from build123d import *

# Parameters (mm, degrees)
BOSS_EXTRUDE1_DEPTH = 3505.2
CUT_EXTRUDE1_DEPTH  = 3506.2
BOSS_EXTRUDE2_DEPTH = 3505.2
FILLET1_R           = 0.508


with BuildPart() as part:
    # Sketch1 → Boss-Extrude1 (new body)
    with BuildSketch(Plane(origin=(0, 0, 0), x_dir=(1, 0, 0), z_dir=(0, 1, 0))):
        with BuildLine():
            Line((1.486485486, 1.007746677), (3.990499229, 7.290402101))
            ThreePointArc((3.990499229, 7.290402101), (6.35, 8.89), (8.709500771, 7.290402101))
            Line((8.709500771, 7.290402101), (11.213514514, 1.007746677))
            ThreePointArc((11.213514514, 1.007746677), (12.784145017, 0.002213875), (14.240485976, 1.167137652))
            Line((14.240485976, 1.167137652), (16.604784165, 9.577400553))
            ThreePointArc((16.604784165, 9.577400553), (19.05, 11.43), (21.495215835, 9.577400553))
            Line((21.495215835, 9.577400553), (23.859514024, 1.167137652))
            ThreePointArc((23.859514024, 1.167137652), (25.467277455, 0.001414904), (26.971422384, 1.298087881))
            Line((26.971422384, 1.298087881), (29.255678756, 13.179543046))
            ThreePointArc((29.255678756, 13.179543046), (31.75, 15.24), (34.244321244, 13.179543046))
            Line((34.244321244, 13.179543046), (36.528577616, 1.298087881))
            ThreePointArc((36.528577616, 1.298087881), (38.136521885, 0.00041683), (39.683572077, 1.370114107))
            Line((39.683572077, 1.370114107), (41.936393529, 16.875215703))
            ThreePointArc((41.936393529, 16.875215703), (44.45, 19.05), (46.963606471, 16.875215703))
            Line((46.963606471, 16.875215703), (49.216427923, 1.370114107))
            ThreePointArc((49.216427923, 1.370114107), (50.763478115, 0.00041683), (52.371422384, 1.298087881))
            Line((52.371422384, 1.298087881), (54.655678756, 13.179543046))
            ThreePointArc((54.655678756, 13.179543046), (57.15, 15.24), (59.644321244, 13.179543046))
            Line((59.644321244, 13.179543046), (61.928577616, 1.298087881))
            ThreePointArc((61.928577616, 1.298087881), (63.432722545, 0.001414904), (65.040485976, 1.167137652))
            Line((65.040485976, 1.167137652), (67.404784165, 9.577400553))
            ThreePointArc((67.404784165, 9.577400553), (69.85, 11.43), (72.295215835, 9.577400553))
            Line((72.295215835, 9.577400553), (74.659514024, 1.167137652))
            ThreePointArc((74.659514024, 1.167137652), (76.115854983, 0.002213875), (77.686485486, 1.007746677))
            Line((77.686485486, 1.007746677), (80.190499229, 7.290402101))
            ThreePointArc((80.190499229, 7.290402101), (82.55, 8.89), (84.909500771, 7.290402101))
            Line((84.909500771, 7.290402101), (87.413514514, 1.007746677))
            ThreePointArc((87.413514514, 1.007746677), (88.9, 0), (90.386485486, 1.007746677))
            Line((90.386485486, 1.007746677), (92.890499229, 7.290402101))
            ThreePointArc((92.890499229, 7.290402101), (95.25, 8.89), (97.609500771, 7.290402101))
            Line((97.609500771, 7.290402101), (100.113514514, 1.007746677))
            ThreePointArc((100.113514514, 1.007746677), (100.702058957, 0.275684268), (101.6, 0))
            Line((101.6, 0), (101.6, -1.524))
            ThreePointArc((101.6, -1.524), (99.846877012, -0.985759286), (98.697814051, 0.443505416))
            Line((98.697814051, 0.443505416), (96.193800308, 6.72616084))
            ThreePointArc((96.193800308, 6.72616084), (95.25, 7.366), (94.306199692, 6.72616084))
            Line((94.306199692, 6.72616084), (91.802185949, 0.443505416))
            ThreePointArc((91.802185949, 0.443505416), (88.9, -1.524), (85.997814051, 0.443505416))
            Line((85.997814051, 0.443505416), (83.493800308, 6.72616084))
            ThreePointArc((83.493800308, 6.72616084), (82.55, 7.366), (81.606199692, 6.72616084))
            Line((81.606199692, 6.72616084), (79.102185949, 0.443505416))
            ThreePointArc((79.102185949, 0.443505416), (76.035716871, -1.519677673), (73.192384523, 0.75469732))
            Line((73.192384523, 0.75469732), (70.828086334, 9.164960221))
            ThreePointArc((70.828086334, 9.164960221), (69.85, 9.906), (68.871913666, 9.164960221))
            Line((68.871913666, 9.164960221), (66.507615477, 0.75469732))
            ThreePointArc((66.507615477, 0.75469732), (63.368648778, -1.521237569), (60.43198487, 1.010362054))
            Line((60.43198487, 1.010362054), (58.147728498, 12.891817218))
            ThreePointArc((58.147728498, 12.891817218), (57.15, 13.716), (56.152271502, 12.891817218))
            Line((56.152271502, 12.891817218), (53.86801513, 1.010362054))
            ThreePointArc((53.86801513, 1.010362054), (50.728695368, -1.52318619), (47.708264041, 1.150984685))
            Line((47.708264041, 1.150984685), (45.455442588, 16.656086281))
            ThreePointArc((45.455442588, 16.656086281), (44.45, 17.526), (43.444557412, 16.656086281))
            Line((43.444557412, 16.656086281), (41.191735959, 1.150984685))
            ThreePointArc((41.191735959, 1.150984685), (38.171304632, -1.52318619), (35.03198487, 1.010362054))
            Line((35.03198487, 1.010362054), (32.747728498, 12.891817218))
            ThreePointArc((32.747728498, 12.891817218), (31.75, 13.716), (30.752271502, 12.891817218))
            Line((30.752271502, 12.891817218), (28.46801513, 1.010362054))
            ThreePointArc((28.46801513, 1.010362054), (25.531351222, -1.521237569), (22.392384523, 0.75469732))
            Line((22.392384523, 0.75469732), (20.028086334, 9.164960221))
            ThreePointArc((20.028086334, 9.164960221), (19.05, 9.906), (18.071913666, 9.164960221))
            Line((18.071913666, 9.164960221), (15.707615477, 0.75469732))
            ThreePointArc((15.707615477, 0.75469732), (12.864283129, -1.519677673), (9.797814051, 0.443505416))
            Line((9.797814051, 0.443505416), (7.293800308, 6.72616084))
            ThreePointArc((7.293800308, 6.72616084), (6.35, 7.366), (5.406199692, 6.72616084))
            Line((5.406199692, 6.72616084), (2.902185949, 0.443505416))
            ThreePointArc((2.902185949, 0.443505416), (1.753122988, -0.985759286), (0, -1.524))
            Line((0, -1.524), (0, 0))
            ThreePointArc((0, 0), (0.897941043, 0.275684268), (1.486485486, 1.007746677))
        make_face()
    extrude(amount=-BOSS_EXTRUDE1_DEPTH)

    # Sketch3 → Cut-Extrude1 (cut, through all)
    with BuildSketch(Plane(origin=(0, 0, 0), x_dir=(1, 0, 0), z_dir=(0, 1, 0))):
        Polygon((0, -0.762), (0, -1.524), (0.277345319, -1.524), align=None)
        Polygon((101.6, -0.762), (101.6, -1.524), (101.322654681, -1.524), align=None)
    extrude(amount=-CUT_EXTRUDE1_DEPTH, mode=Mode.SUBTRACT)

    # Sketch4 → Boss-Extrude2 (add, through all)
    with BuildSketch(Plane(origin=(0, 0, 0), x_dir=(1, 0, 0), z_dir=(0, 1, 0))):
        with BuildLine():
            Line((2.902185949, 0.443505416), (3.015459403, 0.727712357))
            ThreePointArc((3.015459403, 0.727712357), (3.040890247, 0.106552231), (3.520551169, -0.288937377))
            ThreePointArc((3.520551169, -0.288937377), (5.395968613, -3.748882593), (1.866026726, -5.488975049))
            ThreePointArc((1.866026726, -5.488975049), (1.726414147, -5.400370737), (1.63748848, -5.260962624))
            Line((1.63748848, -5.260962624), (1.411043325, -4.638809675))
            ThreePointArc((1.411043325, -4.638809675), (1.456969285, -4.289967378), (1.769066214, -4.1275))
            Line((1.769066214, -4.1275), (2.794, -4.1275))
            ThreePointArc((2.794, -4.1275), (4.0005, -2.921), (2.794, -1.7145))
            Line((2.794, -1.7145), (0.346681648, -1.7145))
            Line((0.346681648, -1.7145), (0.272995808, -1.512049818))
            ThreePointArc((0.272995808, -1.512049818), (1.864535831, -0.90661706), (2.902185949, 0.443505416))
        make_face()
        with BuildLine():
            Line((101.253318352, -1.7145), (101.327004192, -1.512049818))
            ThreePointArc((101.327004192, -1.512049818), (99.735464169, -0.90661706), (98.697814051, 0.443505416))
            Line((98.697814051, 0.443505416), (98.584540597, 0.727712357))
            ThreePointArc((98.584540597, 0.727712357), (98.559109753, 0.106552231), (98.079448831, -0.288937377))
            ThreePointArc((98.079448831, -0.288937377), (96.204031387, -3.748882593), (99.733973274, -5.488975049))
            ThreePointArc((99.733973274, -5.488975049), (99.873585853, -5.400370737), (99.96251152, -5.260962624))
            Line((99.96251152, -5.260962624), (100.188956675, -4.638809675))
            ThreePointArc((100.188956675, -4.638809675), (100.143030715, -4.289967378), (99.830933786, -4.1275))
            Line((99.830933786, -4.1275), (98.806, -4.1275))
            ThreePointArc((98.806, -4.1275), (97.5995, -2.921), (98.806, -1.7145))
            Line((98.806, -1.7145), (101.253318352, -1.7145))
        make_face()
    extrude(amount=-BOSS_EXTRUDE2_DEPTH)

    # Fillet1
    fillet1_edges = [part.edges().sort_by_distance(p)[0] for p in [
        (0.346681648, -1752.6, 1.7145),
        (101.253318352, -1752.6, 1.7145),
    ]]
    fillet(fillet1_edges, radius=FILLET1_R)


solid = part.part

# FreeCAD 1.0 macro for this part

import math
import FreeCAD as App
import Part
import Sketcher
from FreeCAD import Vector
Q = App.Units.Quantity


def edges_at(feature, points):
    """Names of the edges that pass closest to the given points."""
    edges = feature.Shape.Edges
    near = lambda p: min(range(len(edges)), key=lambda i: edges[i].distToShape(Part.Vertex(*p))[0])
    return sorted({f"Edge{near(p) + 1}" for p in points})


def add_polygon(sketch, points):
    """Adds a closed chain of lines whose ends are joined by coincident constraints."""
    first, n = sketch.GeometryCount, len(points)
    for a, b in zip(points, points[1:] + points[:1]):
        sketch.addGeometry(Part.LineSegment(App.Vector(*a, 0), App.Vector(*b, 0)), False)
    for i in range(n):
        sketch.addConstraint(Sketcher.Constraint("Coincident", first + i, 2, first + (i + 1) % n, 1))

doc = App.newDocument("Part")
body = doc.addObject("PartDesign::Body", "Body")

sketch1 = body.newObject("Sketcher::SketchObject", "Sketch")
sketch1.AttachmentSupport = (doc.getObject("XZ_Plane"), [""])
sketch1.MapMode = "FlatFace"
sketch1.addGeometry([
    Part.LineSegment(Vector(4, -7.3, 0), Vector(1.5, -1, 0)),
    Part.ArcOfCircle(Part.Circle(Vector(0, -1.6, 0), Vector(0, 0, 1), 1.6), math.radians(22), math.radians(90)),
    Part.LineSegment(Vector(0, 0, 0), Vector(0, 1.5, 0)),
    Part.ArcOfCircle(Part.Circle(Vector(0, -1.6, 0), Vector(0, 0, 1), 3.1), math.radians(22), math.radians(90)),
    Part.LineSegment(Vector(2.9, -0.4, 0), Vector(5.4, -6.7, 0)),
    Part.ArcOfCircle(Part.Circle(Vector(6.3, -6.4, 0), Vector(0, 0, 1), 1), math.radians(-158), math.radians(-22)),
    Part.LineSegment(Vector(7.3, -6.7, 0), Vector(9.8, -0.4, 0)),
    Part.ArcOfCircle(Part.Circle(Vector(12.7, -1.6, 0), Vector(0, 0, 1), 3.1), math.radians(16), math.radians(158)),
    Part.LineSegment(Vector(15.7, -0.8, 0), Vector(18.1, -9.2, 0)),
    Part.ArcOfCircle(Part.Circle(Vector(19.1, -8.9, 0), Vector(0, 0, 1), 1), math.radians(-164), math.radians(-16)),
    Part.LineSegment(Vector(20, -9.2, 0), Vector(22.4, -0.8, 0)),
    Part.ArcOfCircle(Part.Circle(Vector(25.4, -1.6, 0), Vector(0, 0, 1), 3.1), math.radians(11), math.radians(164)),
    Part.LineSegment(Vector(28.5, -1, 0), Vector(30.8, -12.9, 0)),
    Part.ArcOfCircle(Part.Circle(Vector(31.8, -12.7, 0), Vector(0, 0, 1), 1), math.radians(-169), math.radians(-11)),
    Part.LineSegment(Vector(32.7, -12.9, 0), Vector(35, -1, 0)),
    Part.ArcOfCircle(Part.Circle(Vector(38.1, -1.6, 0), Vector(0, 0, 1), 3.1), math.radians(8), math.radians(169)),
    Part.LineSegment(Vector(41.2, -1.2, 0), Vector(43.4, -16.7, 0)),
    Part.ArcOfCircle(Part.Circle(Vector(44.5, -16.5, 0), Vector(0, 0, 1), 1), math.radians(-172), math.radians(-8)),
    Part.LineSegment(Vector(45.5, -16.7, 0), Vector(47.7, -1.2, 0)),
    Part.ArcOfCircle(Part.Circle(Vector(50.8, -1.6, 0), Vector(0, 0, 1), 3.1), math.radians(11), math.radians(172)),
    Part.LineSegment(Vector(53.9, -1, 0), Vector(56.2, -12.9, 0)),
    Part.ArcOfCircle(Part.Circle(Vector(57.1, -12.7, 0), Vector(0, 0, 1), 1), math.radians(-169), math.radians(-11)),
    Part.LineSegment(Vector(58.1, -12.9, 0), Vector(60.4, -1, 0)),
    Part.ArcOfCircle(Part.Circle(Vector(63.5, -1.6, 0), Vector(0, 0, 1), 3.1), math.radians(16), math.radians(169)),
    Part.LineSegment(Vector(66.5, -0.8, 0), Vector(68.9, -9.2, 0)),
    Part.ArcOfCircle(Part.Circle(Vector(69.8, -8.9, 0), Vector(0, 0, 1), 1), math.radians(-164), math.radians(-16)),
    Part.LineSegment(Vector(70.8, -9.2, 0), Vector(73.2, -0.8, 0)),
    Part.ArcOfCircle(Part.Circle(Vector(76.2, -1.6, 0), Vector(0, 0, 1), 3.1), math.radians(22), math.radians(164)),
    Part.LineSegment(Vector(79.1, -0.4, 0), Vector(81.6, -6.7, 0)),
    Part.ArcOfCircle(Part.Circle(Vector(82.5, -6.4, 0), Vector(0, 0, 1), 1), math.radians(-158), math.radians(-22)),
    Part.LineSegment(Vector(83.5, -6.7, 0), Vector(86, -0.4, 0)),
    Part.ArcOfCircle(Part.Circle(Vector(88.9, -1.6, 0), Vector(0, 0, 1), 3.1), math.radians(22), math.radians(158)),
    Part.LineSegment(Vector(91.8, -0.4, 0), Vector(94.3, -6.7, 0)),
    Part.ArcOfCircle(Part.Circle(Vector(95.2, -6.4, 0), Vector(0, 0, 1), 1), math.radians(-158), math.radians(-22)),
    Part.LineSegment(Vector(96.2, -6.7, 0), Vector(98.7, -0.4, 0)),
    Part.ArcOfCircle(Part.Circle(Vector(101.6, -1.6, 0), Vector(0, 0, 1), 3.1), math.radians(90), math.radians(158)),
    Part.LineSegment(Vector(101.6, 1.5, 0), Vector(101.6, 0, 0)),
    Part.ArcOfCircle(Part.Circle(Vector(101.6, -1.6, 0), Vector(0, 0, 1), 1.6), math.radians(90), math.radians(158)),
    Part.LineSegment(Vector(100.1, -1, 0), Vector(97.6, -7.3, 0)),
    Part.ArcOfCircle(Part.Circle(Vector(95.2, -6.3, 0), Vector(0, 0, 1), 2.5), math.radians(-158), math.radians(-22)),
    Part.LineSegment(Vector(92.9, -7.3, 0), Vector(90.4, -1, 0)),
    Part.ArcOfCircle(Part.Circle(Vector(88.9, -1.6, 0), Vector(0, 0, 1), 1.6), math.radians(22), math.radians(158)),
    Part.LineSegment(Vector(87.4, -1, 0), Vector(84.9, -7.3, 0)),
    Part.ArcOfCircle(Part.Circle(Vector(82.5, -6.3, 0), Vector(0, 0, 1), 2.5), math.radians(-158), math.radians(-22)),
    Part.LineSegment(Vector(80.2, -7.3, 0), Vector(77.7, -1, 0)),
    Part.ArcOfCircle(Part.Circle(Vector(76.2, -1.6, 0), Vector(0, 0, 1), 1.6), math.radians(22), math.radians(164)),
    Part.LineSegment(Vector(74.7, -1.2, 0), Vector(72.3, -9.6, 0)),
    Part.ArcOfCircle(Part.Circle(Vector(69.8, -8.9, 0), Vector(0, 0, 1), 2.5), math.radians(-164), math.radians(-16)),
    Part.LineSegment(Vector(67.4, -9.6, 0), Vector(65, -1.2, 0)),
    Part.ArcOfCircle(Part.Circle(Vector(63.5, -1.6, 0), Vector(0, 0, 1), 1.6), math.radians(16), math.radians(169)),
    Part.LineSegment(Vector(61.9, -1.3, 0), Vector(59.6, -13.2, 0)),
    Part.ArcOfCircle(Part.Circle(Vector(57.1, -12.7, 0), Vector(0, 0, 1), 2.5), math.radians(-169), math.radians(-11)),
    Part.LineSegment(Vector(54.7, -13.2, 0), Vector(52.4, -1.3, 0)),
    Part.ArcOfCircle(Part.Circle(Vector(50.8, -1.6, 0), Vector(0, 0, 1), 1.6), math.radians(11), math.radians(172)),
    Part.LineSegment(Vector(49.2, -1.4, 0), Vector(47, -16.9, 0)),
    Part.ArcOfCircle(Part.Circle(Vector(44.5, -16.5, 0), Vector(0, 0, 1), 2.5), math.radians(-172), math.radians(-8)),
    Part.LineSegment(Vector(41.9, -16.9, 0), Vector(39.7, -1.4, 0)),
    Part.ArcOfCircle(Part.Circle(Vector(38.1, -1.6, 0), Vector(0, 0, 1), 1.6), math.radians(8), math.radians(169)),
    Part.LineSegment(Vector(36.5, -1.3, 0), Vector(34.2, -13.2, 0)),
    Part.ArcOfCircle(Part.Circle(Vector(31.8, -12.7, 0), Vector(0, 0, 1), 2.5), math.radians(-169), math.radians(-11)),
    Part.LineSegment(Vector(29.3, -13.2, 0), Vector(27, -1.3, 0)),
    Part.ArcOfCircle(Part.Circle(Vector(25.4, -1.6, 0), Vector(0, 0, 1), 1.6), math.radians(11), math.radians(164)),
    Part.LineSegment(Vector(23.9, -1.2, 0), Vector(21.5, -9.6, 0)),
    Part.ArcOfCircle(Part.Circle(Vector(19.1, -8.9, 0), Vector(0, 0, 1), 2.5), math.radians(-164), math.radians(-16)),
    Part.LineSegment(Vector(16.6, -9.6, 0), Vector(14.2, -1.2, 0)),
    Part.ArcOfCircle(Part.Circle(Vector(12.7, -1.6, 0), Vector(0, 0, 1), 1.6), math.radians(16), math.radians(158)),
    Part.LineSegment(Vector(11.2, -1, 0), Vector(8.7, -7.3, 0)),
    Part.ArcOfCircle(Part.Circle(Vector(6.3, -6.3, 0), Vector(0, 0, 1), 2.5), math.radians(-158), math.radians(-22)),
], False)
sketch1.addConstraint([
    Sketcher.Constraint("Tangent", 0, 2, 1, 1),
    Sketcher.Constraint("Coincident", 1, 2, 2, 1),
    Sketcher.Constraint("Coincident", 2, 2, 3, 2),
    Sketcher.Constraint("Tangent", 3, 1, 4, 1),
    Sketcher.Constraint("Tangent", 4, 2, 5, 1),
    Sketcher.Constraint("Tangent", 5, 2, 6, 1),
    Sketcher.Constraint("Tangent", 6, 2, 7, 2),
    Sketcher.Constraint("Tangent", 7, 1, 8, 1),
    Sketcher.Constraint("Tangent", 8, 2, 9, 1),
    Sketcher.Constraint("Tangent", 9, 2, 10, 1),
    Sketcher.Constraint("Tangent", 10, 2, 11, 2),
    Sketcher.Constraint("Tangent", 11, 1, 12, 1),
    Sketcher.Constraint("Tangent", 12, 2, 13, 1),
    Sketcher.Constraint("Tangent", 13, 2, 14, 1),
    Sketcher.Constraint("Tangent", 14, 2, 15, 2),
    Sketcher.Constraint("Tangent", 15, 1, 16, 1),
    Sketcher.Constraint("Tangent", 16, 2, 17, 1),
    Sketcher.Constraint("Tangent", 17, 2, 18, 1),
    Sketcher.Constraint("Tangent", 18, 2, 19, 2),
    Sketcher.Constraint("Tangent", 19, 1, 20, 1),
    Sketcher.Constraint("Tangent", 20, 2, 21, 1),
    Sketcher.Constraint("Tangent", 21, 2, 22, 1),
    Sketcher.Constraint("Tangent", 22, 2, 23, 2),
    Sketcher.Constraint("Tangent", 23, 1, 24, 1),
    Sketcher.Constraint("Tangent", 24, 2, 25, 1),
    Sketcher.Constraint("Tangent", 25, 2, 26, 1),
    Sketcher.Constraint("Tangent", 26, 2, 27, 2),
    Sketcher.Constraint("Tangent", 27, 1, 28, 1),
    Sketcher.Constraint("Tangent", 28, 2, 29, 1),
    Sketcher.Constraint("Tangent", 29, 2, 30, 1),
    Sketcher.Constraint("Tangent", 30, 2, 31, 2),
    Sketcher.Constraint("Tangent", 31, 1, 32, 1),
    Sketcher.Constraint("Tangent", 32, 2, 33, 1),
    Sketcher.Constraint("Tangent", 33, 2, 34, 1),
    Sketcher.Constraint("Tangent", 34, 2, 35, 2),
    Sketcher.Constraint("Coincident", 35, 1, 36, 1),
    Sketcher.Constraint("Coincident", 36, 2, 37, 1),
    Sketcher.Constraint("Tangent", 37, 2, 38, 1),
    Sketcher.Constraint("Tangent", 38, 2, 39, 2),
    Sketcher.Constraint("Tangent", 39, 1, 40, 1),
    Sketcher.Constraint("Tangent", 40, 2, 41, 1),
    Sketcher.Constraint("Tangent", 41, 2, 42, 1),
    Sketcher.Constraint("Tangent", 42, 2, 43, 2),
    Sketcher.Constraint("Tangent", 43, 1, 44, 1),
    Sketcher.Constraint("Tangent", 44, 2, 45, 1),
    Sketcher.Constraint("Tangent", 45, 2, 46, 1),
    Sketcher.Constraint("Tangent", 46, 2, 47, 2),
    Sketcher.Constraint("Tangent", 47, 1, 48, 1),
    Sketcher.Constraint("Tangent", 48, 2, 49, 1),
    Sketcher.Constraint("Tangent", 49, 2, 50, 1),
    Sketcher.Constraint("Tangent", 50, 2, 51, 2),
    Sketcher.Constraint("Tangent", 51, 1, 52, 1),
    Sketcher.Constraint("Tangent", 52, 2, 53, 1),
    Sketcher.Constraint("Tangent", 53, 2, 54, 1),
    Sketcher.Constraint("Tangent", 54, 2, 55, 2),
    Sketcher.Constraint("Tangent", 55, 1, 56, 1),
    Sketcher.Constraint("Tangent", 56, 2, 57, 1),
    Sketcher.Constraint("Tangent", 57, 2, 58, 1),
    Sketcher.Constraint("Tangent", 58, 2, 59, 2),
    Sketcher.Constraint("Tangent", 59, 1, 60, 1),
    Sketcher.Constraint("Tangent", 60, 2, 61, 1),
    Sketcher.Constraint("Tangent", 61, 2, 62, 1),
    Sketcher.Constraint("Tangent", 62, 2, 63, 2),
    Sketcher.Constraint("Tangent", 63, 1, 64, 1),
    Sketcher.Constraint("Tangent", 64, 2, 65, 1),
    Sketcher.Constraint("Tangent", 65, 2, 66, 1),
    Sketcher.Constraint("Tangent", 66, 2, 67, 2),
    Sketcher.Constraint("Tangent", 67, 1, 0, 1),
    Sketcher.Constraint("Vertical", 2),
    Sketcher.Constraint("Vertical", 36),
    Sketcher.Constraint("Coincident", 1, 2, -1, 1),
    Sketcher.Constraint("Coincident", 3, 3, 1, 3),
    Sketcher.Constraint("Coincident", 37, 3, 35, 3),
    Sketcher.Constraint("Coincident", 39, 3, 33, 3),
    Sketcher.Constraint("Coincident", 41, 3, 31, 3),
    Sketcher.Constraint("Coincident", 43, 3, 29, 3),
    Sketcher.Constraint("Coincident", 45, 3, 27, 3),
    Sketcher.Constraint("Coincident", 47, 3, 25, 3),
    Sketcher.Constraint("Coincident", 49, 3, 23, 3),
    Sketcher.Constraint("Coincident", 51, 3, 21, 3),
    Sketcher.Constraint("Coincident", 53, 3, 19, 3),
    Sketcher.Constraint("Coincident", 55, 3, 17, 3),
    Sketcher.Constraint("Coincident", 57, 3, 15, 3),
    Sketcher.Constraint("Coincident", 59, 3, 13, 3),
    Sketcher.Constraint("Coincident", 61, 3, 11, 3),
    Sketcher.Constraint("Coincident", 63, 3, 9, 3),
    Sketcher.Constraint("Coincident", 65, 3, 7, 3),
    Sketcher.Constraint("Coincident", 67, 3, 5, 3),
    Sketcher.Constraint("Equal", 3, 7),
    Sketcher.Constraint("Equal", 5, 9),
    Sketcher.Constraint("Equal", 7, 11),
    Sketcher.Constraint("Equal", 9, 13),
    Sketcher.Constraint("Equal", 11, 15),
    Sketcher.Constraint("Equal", 13, 17),
    Sketcher.Constraint("Equal", 15, 19),
    Sketcher.Constraint("Equal", 17, 21),
    Sketcher.Constraint("Equal", 19, 23),
    Sketcher.Constraint("Equal", 21, 25),
    Sketcher.Constraint("Equal", 23, 27),
    Sketcher.Constraint("Equal", 25, 29),
    Sketcher.Constraint("Equal", 27, 31),
    Sketcher.Constraint("Equal", 29, 33),
    Sketcher.Constraint("Equal", 31, 35),
    Sketcher.Constraint("Equal", 1, 37),
    Sketcher.Constraint("Equal", 37, 41),
    Sketcher.Constraint("Equal", 39, 43),
    Sketcher.Constraint("Equal", 41, 45),
    Sketcher.Constraint("Equal", 43, 47),
    Sketcher.Constraint("Equal", 45, 49),
    Sketcher.Constraint("Equal", 47, 51),
    Sketcher.Constraint("Equal", 49, 53),
    Sketcher.Constraint("Equal", 51, 55),
    Sketcher.Constraint("Equal", 53, 57),
    Sketcher.Constraint("Equal", 55, 59),
    Sketcher.Constraint("Equal", 57, 61),
    Sketcher.Constraint("Equal", 59, 63),
    Sketcher.Constraint("Equal", 61, 65),
    Sketcher.Constraint("Equal", 63, 67),
    Sketcher.Constraint("PointOnObject", 1, 3, -2),
    Sketcher.Constraint("PointOnObject", 36, 2, -1),
    Sketcher.Constraint("Parallel", 0, 4),
    Sketcher.Constraint("Parallel", 12, 20),
    Sketcher.Constraint("Parallel", 14, 22),
    Sketcher.Constraint("Parallel", 8, 24),
    Sketcher.Constraint("Parallel", 10, 26),
    Sketcher.Constraint("Parallel", 4, 28),
    Sketcher.Constraint("Parallel", 6, 30),
    Sketcher.Constraint("Parallel", 28, 32),
    Sketcher.Constraint("Parallel", 30, 34),
    Sketcher.Constraint("Horizontal", 3, 3, 7, 3),
    Sketcher.Constraint("Horizontal", 7, 3, 11, 3),
    Sketcher.Constraint("Horizontal", 11, 3, 15, 3),
    Sketcher.Constraint("Horizontal", 15, 3, 19, 3),
    Sketcher.Constraint("Horizontal", 13, 3, 21, 3),
    Sketcher.Constraint("Horizontal", 19, 3, 23, 3),
    Sketcher.Constraint("Horizontal", 9, 3, 25, 3),
    Sketcher.Constraint("Horizontal", 23, 3, 27, 3),
    Sketcher.Constraint("Horizontal", 5, 3, 29, 3),
    Sketcher.Constraint("Horizontal", 27, 3, 31, 3),
    Sketcher.Constraint("Horizontal", 29, 3, 33, 3),
    Sketcher.Constraint("Horizontal", 4, 2, 5, 2),
    Sketcher.Constraint("Horizontal", 8, 2, 9, 2),
    Sketcher.Constraint("Horizontal", 12, 2, 13, 2),
    Sketcher.Constraint("Horizontal", 16, 2, 17, 2),
    Sketcher.Constraint("Vertical", 37, 3, 35, 1),
    Sketcher.Constraint("Radius", 39, Q("0.1 in")),
    Sketcher.Constraint("Radius", 5, Q("0.04 in")),
    Sketcher.Constraint("DistanceX", -1, 1, 11, 3, Q("1 in")),
    Sketcher.Constraint("DistanceX", -1, 1, 19, 3, Q("2 in")),
    Sketcher.Constraint("DistanceX", -1, 1, 27, 3, Q("3 in")),
    Sketcher.Constraint("DistanceX", -1, 1, 35, 3, Q("4 in")),
    Sketcher.Constraint("Radius", 1, Q("0.063 in")),
    Sketcher.Constraint("DistanceY", 13, 3, -1, 1, Q("0.5 in")),
    Sketcher.Constraint("DistanceY", 5, 3, -1, 1, Q("0.25 in")),
    Sketcher.Constraint("DistanceY", 9, 3, -1, 1, Q("0.35 in")),
    Sketcher.Constraint("DistanceY", 17, 3, -1, 1, Q("0.65 in")),
])
pad1 = body.newObject("PartDesign::Pad", "Pad")
pad1.Profile = sketch1
pad1.Length = Q("138 in")

sketch2 = body.newObject("Sketcher::SketchObject", "Sketch001")
sketch2.AttachmentSupport = (doc.getObject("XZ_Plane"), [""])
sketch2.MapMode = "FlatFace"
add_polygon(sketch2, [(0, 0.76), (0, 1.52), (0.28, 1.52)])
add_polygon(sketch2, [(101.6, 1.52), (101.6, 0.76), (101.32, 1.52)])
sketch2.addConstraint([
    Sketcher.Constraint("Vertical", 0),
    Sketcher.Constraint("Horizontal", 1),
    Sketcher.Constraint("Vertical", 3),
    Sketcher.Constraint("Horizontal", 5),
    Sketcher.Constraint("PointOnObject", 0, 2, -2),
    Sketcher.Constraint("Horizontal", 2, 2, 3, 2),
    Sketcher.Constraint("Horizontal", 1, 2, 4, 2),
    Sketcher.Constraint("Equal", 1, 5),
    Sketcher.Constraint("DistanceX", -1, 1, 3, 2, Q("4 in")),
    Sketcher.Constraint("Angle", 2, Q("-110 deg")),
    Sketcher.Constraint("DistanceY", 0, 1, 0, 2, Q("0.03 in")),
    Sketcher.Constraint("DistanceY", -1, 1, 0, 2, Q("0.06 in")),
])
pocket1 = body.newObject("PartDesign::Pocket", "Pocket")
pocket1.Profile = sketch2
pocket1.Type = "ThroughAll"
pocket1.Reversed = True

sketch3 = body.newObject("Sketcher::SketchObject", "Sketch002")
sketch3.AttachmentSupport = (doc.getObject("XZ_Plane"), [""])
sketch3.MapMode = "FlatFace"
sketch3.addGeometry([
    Part.LineSegment(Vector(3.02, -0.73, 0), Vector(2.9, -0.44, 0)),
    Part.ArcOfCircle(Part.Circle(Vector(0, -1.6, 0), Vector(0, 0, 1), 3.12), math.radians(22), math.radians(85)),
    Part.LineSegment(Vector(0.27, 1.51, 0), Vector(0.35, 1.71, 0)),
    Part.LineSegment(Vector(0.35, 1.71, 0), Vector(2.79, 1.71, 0)),
    Part.ArcOfCircle(Part.Circle(Vector(2.79, 2.92, 0), Vector(0, 0, 1), 1.21), math.radians(-90), math.radians(90)),
    Part.LineSegment(Vector(2.79, 4.13, 0), Vector(1.77, 4.13, 0)),
    Part.ArcOfCircle(Part.Circle(Vector(1.77, 4.51, 0), Vector(0, 0, 1), 0.38), math.radians(160), math.radians(270)),
    Part.LineSegment(Vector(1.41, 4.64, 0), Vector(1.64, 5.26, 0)),
    Part.ArcOfCircle(Part.Circle(Vector(2, 5.13, 0), Vector(0, 0, 1), 0.38), math.radians(110), math.radians(160)),
    Part.ArcOfCircle(Part.Circle(Vector(2.79, 2.92, 0), Vector(0, 0, 1), 2.73), math.radians(-75), math.radians(110)),
    Part.ArcOfCircle(Part.Circle(Vector(3.72, -0.45, 0), Vector(0, 0, 1), 0.76), math.radians(105), math.radians(202)),
    Part.LineSegment(Vector(101.25, 1.71, 0), Vector(101.33, 1.51, 0)),
    Part.ArcOfCircle(Part.Circle(Vector(101.6, -1.6, 0), Vector(0, 0, 1), 3.12), math.radians(95), math.radians(158)),
    Part.LineSegment(Vector(98.7, -0.44, 0), Vector(98.58, -0.73, 0)),
    Part.ArcOfCircle(Part.Circle(Vector(97.88, -0.45, 0), Vector(0, 0, 1), 0.76), math.radians(-22), math.radians(75)),
    Part.ArcOfCircle(Part.Circle(Vector(98.81, 2.92, 0), Vector(0, 0, 1), 2.73), math.radians(70), math.radians(255)),
    Part.ArcOfCircle(Part.Circle(Vector(99.6, 5.13, 0), Vector(0, 0, 1), 0.38), math.radians(20), math.radians(70)),
    Part.LineSegment(Vector(99.96, 5.26, 0), Vector(100.19, 4.64, 0)),
    Part.ArcOfCircle(Part.Circle(Vector(99.83, 4.51, 0), Vector(0, 0, 1), 0.38), math.radians(-90), math.radians(20)),
    Part.LineSegment(Vector(99.83, 4.13, 0), Vector(98.81, 4.13, 0)),
    Part.ArcOfCircle(Part.Circle(Vector(98.81, 2.92, 0), Vector(0, 0, 1), 1.21), math.radians(90), math.radians(270)),
    Part.LineSegment(Vector(98.81, 1.71, 0), Vector(101.25, 1.71, 0)),
], False)
sketch3.addConstraint([
    Sketcher.Constraint("Tangent", 0, 2, 1, 1),
    Sketcher.Constraint("Coincident", 1, 2, 2, 1),
    Sketcher.Constraint("Coincident", 2, 2, 3, 1),
    Sketcher.Constraint("Tangent", 3, 2, 4, 1),
    Sketcher.Constraint("Tangent", 4, 2, 5, 1),
    Sketcher.Constraint("Tangent", 5, 2, 6, 2),
    Sketcher.Constraint("Tangent", 6, 1, 7, 1),
    Sketcher.Constraint("Tangent", 7, 2, 8, 2),
    Sketcher.Constraint("Tangent", 8, 1, 9, 2),
    Sketcher.Constraint("Tangent", 9, 1, 10, 1),
    Sketcher.Constraint("Tangent", 10, 2, 0, 1),
    Sketcher.Constraint("Coincident", 11, 2, 12, 1),
    Sketcher.Constraint("Tangent", 12, 2, 13, 1),
    Sketcher.Constraint("Tangent", 13, 2, 14, 1),
    Sketcher.Constraint("Tangent", 14, 2, 15, 2),
    Sketcher.Constraint("Tangent", 15, 1, 16, 2),
    Sketcher.Constraint("Tangent", 16, 1, 17, 1),
    Sketcher.Constraint("Tangent", 17, 2, 18, 2),
    Sketcher.Constraint("Tangent", 18, 1, 19, 1),
    Sketcher.Constraint("Tangent", 19, 2, 20, 1),
    Sketcher.Constraint("Tangent", 20, 2, 21, 1),
    Sketcher.Constraint("Coincident", 21, 2, 11, 1),
    Sketcher.Constraint("Horizontal", 3),
    Sketcher.Constraint("Horizontal", 5),
    Sketcher.Constraint("Horizontal", 19),
    Sketcher.Constraint("Horizontal", 21),
    Sketcher.Constraint("Coincident", 9, 3, 4, 3),
    Sketcher.Constraint("Coincident", 20, 3, 15, 3),
    Sketcher.Constraint("Equal", 6, 8),
    Sketcher.Constraint("Equal", 1, 12),
    Sketcher.Constraint("Equal", 10, 14),
    Sketcher.Constraint("Equal", 9, 15),
    Sketcher.Constraint("Equal", 8, 16),
    Sketcher.Constraint("Equal", 16, 18),
    Sketcher.Constraint("Equal", 4, 20),
    Sketcher.Constraint("PointOnObject", 1, 3, -2),
    Sketcher.Constraint("Parallel", 2, 7),
    Sketcher.Constraint("Parallel", 11, 17),
    Sketcher.Constraint("Horizontal", 1, 3, 12, 3),
    Sketcher.Constraint("Horizontal", 10, 3, 14, 3),
    Sketcher.Constraint("Horizontal", 9, 3, 15, 3),
    Sketcher.Constraint("Horizontal", 8, 3, 16, 3),
    Sketcher.Constraint("Horizontal", 1, 2, 11, 2),
    Sketcher.Constraint("Horizontal", 0, 2, 12, 2),
    Sketcher.Constraint("Horizontal", 7, 2, 16, 1),
    Sketcher.Constraint("Radius", 10, Q("0.03 in")),
    Sketcher.Constraint("DistanceX", -1, 1, 12, 3, Q("4 in")),
    Sketcher.Constraint("Angle", 2, Q("70 deg")),
    Sketcher.Constraint("Radius", 1, Q("0.123 in")),
    Sketcher.Constraint("Radius", 6, Q("0.015 in")),
    Sketcher.Constraint("Radius", 4, Q("0.0475 in")),
    Sketcher.Constraint("Radius", 9, Q("0.1075 in")),
    Sketcher.Constraint("DistanceX", -1, 1, 4, 3, Q("0.11 in")),
    Sketcher.Constraint("DistanceY", 1, 3, -1, 1, Q("0.063 in")),
    Sketcher.Constraint("DistanceY", -1, 1, 4, 3, Q("0.115 in")),
    Sketcher.Constraint("DistanceX", 3, 1, 3, 2, 2.447318),
    Sketcher.Constraint("DistanceX", 8, 3, 10, 3, 1.727798),
    Sketcher.Constraint("Distance", 0, 0.305948),
])
pad2 = body.newObject("PartDesign::Pad", "Pad001")
pad2.Profile = sketch3
pad2.Length = Q("138 in")
doc.recompute()

fillet = body.newObject("PartDesign::Fillet", "Fillet")
fillet.Base = (pad2, edges_at(pad2, [(0.347, -1752.6, 1.714), (101.253, -1752.6, 1.714)]))
fillet.Radius = Q("0.02 in")

doc.recompute()
